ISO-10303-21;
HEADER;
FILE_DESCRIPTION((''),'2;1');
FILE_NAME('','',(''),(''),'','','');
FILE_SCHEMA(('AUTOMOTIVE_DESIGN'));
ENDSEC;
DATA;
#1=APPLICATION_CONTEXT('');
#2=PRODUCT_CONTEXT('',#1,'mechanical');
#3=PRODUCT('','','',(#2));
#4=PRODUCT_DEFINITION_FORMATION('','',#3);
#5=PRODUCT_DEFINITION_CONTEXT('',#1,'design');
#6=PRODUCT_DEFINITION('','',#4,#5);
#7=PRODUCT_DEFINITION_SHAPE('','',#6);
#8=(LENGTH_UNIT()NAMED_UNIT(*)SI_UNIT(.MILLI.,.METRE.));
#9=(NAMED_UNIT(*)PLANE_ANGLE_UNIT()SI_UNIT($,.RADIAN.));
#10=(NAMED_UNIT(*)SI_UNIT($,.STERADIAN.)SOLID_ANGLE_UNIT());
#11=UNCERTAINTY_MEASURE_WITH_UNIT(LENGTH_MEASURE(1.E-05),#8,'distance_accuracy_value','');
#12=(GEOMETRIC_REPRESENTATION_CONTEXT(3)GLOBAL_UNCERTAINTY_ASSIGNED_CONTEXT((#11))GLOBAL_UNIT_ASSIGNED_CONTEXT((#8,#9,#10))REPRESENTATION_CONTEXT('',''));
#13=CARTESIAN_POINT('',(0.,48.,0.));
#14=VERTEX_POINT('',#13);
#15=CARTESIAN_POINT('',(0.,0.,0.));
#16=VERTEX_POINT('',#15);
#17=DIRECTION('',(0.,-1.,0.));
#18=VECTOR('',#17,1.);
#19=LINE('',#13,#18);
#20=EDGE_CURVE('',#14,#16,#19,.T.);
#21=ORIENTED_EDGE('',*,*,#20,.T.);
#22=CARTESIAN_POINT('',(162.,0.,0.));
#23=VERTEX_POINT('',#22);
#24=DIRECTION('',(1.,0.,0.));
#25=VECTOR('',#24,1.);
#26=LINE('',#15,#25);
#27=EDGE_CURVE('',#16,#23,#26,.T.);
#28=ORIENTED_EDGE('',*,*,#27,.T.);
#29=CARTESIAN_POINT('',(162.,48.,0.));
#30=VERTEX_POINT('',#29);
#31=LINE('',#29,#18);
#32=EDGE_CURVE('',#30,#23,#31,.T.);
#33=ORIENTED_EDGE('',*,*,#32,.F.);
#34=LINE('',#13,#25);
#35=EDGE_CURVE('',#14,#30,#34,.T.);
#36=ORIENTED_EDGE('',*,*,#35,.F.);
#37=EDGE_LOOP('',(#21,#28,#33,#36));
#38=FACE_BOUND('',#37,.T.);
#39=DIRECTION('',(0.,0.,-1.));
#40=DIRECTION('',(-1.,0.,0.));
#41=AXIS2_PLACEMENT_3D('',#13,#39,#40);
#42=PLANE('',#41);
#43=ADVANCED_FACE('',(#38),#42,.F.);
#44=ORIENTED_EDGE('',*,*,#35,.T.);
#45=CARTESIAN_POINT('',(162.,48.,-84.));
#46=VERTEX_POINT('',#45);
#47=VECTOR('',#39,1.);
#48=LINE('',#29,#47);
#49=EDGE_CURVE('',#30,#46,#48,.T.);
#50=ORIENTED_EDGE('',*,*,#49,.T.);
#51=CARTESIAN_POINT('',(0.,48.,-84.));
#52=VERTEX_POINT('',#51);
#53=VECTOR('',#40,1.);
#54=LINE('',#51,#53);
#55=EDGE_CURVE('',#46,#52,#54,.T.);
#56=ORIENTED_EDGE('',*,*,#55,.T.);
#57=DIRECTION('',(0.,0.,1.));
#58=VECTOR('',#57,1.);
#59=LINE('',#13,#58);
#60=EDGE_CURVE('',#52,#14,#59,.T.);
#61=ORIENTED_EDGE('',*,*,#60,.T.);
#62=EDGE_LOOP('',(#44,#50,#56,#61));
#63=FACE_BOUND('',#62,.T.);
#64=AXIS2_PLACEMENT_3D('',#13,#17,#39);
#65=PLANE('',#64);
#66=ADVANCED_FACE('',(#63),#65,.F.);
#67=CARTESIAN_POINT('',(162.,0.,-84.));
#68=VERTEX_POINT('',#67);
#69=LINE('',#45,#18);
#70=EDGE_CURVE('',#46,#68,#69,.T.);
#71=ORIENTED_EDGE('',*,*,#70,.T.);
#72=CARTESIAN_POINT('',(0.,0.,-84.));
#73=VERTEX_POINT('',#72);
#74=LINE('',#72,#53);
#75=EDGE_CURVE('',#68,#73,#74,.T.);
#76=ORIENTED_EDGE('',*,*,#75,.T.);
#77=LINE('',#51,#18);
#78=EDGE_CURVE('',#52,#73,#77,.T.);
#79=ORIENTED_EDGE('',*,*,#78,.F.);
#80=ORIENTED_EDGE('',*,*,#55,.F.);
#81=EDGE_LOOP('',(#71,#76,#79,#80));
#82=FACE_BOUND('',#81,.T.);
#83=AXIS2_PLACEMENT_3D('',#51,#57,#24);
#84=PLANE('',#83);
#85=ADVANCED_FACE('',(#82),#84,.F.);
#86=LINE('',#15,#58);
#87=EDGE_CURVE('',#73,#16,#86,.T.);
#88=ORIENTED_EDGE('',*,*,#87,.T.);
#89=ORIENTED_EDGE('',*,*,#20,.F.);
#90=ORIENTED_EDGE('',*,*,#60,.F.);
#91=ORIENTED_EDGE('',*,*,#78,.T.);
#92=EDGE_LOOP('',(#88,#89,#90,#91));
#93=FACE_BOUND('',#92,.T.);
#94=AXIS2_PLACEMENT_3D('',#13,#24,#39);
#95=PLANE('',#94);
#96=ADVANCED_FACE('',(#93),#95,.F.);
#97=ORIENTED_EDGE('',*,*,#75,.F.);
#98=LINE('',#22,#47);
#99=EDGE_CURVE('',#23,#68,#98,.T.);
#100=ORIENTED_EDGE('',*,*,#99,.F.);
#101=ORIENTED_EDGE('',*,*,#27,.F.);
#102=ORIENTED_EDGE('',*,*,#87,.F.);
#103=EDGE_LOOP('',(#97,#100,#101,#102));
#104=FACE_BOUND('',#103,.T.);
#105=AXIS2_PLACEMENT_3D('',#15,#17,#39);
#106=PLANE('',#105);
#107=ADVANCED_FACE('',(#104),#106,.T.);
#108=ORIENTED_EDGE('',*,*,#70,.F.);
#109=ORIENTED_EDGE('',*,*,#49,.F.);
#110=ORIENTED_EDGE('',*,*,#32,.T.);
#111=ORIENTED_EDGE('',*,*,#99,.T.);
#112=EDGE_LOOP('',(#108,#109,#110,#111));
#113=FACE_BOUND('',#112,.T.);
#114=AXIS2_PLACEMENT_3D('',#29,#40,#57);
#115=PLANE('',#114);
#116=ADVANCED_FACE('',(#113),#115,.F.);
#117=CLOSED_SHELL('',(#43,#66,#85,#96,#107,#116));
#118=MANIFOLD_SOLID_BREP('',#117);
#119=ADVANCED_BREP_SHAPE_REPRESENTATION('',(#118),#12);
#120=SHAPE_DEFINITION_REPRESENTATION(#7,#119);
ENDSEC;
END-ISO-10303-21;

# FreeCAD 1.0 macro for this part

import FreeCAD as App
import Part
import Sketcher
from FreeCAD import Vector

doc = App.newDocument("Part")
body = doc.addObject("PartDesign::Body", "Body")

# Sketch on XZ plane
sketch1 = body.newObject("Sketcher::SketchObject", "Sketch")
sketch1.AttachmentSupport = (doc.getObject("XZ_Plane"), [""])
sketch1.MapMode = "FlatFace"
sketch1.addGeometry([
    Part.LineSegment(Vector(0, -84, 0), Vector(0, 0, 0)),
    Part.LineSegment(Vector(0, 0, 0), Vector(162, 0, 0)),
    Part.LineSegment(Vector(162, 0, 0), Vector(162, -84, 0)),
    Part.LineSegment(Vector(162, -84, 0), Vector(0, -84, 0)),
], False)
sketch1.addConstraint([
    Sketcher.Constraint("Coincident", 0, 2, 1, 1),
    Sketcher.Constraint("Coincident", 1, 2, 2, 1),
    Sketcher.Constraint("Coincident", 2, 2, 3, 1),
    Sketcher.Constraint("Coincident", 3, 2, 0, 1),
    Sketcher.Constraint("Vertical", 0),
    Sketcher.Constraint("Horizontal", 1),
    Sketcher.Constraint("Vertical", 2),
    Sketcher.Constraint("Horizontal", 3),
    Sketcher.Constraint("Coincident", 0, 2, -1, 1),
    Sketcher.Constraint("DistanceX", 1, 1, 1, 2, 162.0),
    Sketcher.Constraint("DistanceY", 0, 1, 0, 2, 84.0),
])
pad1 = body.newObject("PartDesign::Pad", "Pad")
pad1.Profile = sketch1
pad1.Length = 48
pad1.Reversed = True

doc.recompute()
